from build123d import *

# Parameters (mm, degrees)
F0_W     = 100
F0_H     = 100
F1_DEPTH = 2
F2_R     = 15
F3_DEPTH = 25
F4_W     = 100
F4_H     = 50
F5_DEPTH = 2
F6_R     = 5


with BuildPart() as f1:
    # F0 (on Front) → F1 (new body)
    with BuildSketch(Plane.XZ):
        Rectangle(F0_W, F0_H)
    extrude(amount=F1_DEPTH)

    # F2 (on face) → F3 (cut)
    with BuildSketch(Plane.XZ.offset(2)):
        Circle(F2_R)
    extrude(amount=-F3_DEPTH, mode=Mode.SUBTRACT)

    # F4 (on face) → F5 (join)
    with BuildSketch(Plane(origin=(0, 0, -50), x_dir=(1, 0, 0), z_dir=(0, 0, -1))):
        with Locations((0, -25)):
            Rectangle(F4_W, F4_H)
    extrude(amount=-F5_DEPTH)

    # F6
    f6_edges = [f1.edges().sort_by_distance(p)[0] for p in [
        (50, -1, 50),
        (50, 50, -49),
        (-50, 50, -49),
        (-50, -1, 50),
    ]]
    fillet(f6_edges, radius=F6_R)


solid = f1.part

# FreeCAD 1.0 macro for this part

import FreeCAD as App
import Part
import Sketcher
from FreeCAD import Vector


def edges_at(feature, points):
    """Names of the edges that pass closest to the given points."""
    edges = feature.Shape.Edges
    near = lambda p: min(range(len(edges)), key=lambda i: edges[i].distToShape(Part.Vertex(*p))[0])
    return sorted({f"Edge{near(p) + 1}" for p in points})

doc = App.newDocument("Part")
body = doc.addObject("PartDesign::Body", "Body")

sketch1 = doc.addObject("Sketcher::SketchObject", "Sketch")
body.addObject(sketch1)
sketch1.AttachmentSupport = (doc.XZ_Plane, [""])
sketch1.MapMode = "FlatFace"
sketch1.addGeometry(Part.LineSegment(Vector(-50, 50, 0), Vector(-50, -50, 0)), False)
sketch1.addGeometry(Part.LineSegment(Vector(-50, -50, 0), Vector(50, -50, 0)), False)
sketch1.addGeometry(Part.LineSegment(Vector(50, -50, 0), Vector(50, 50, 0)), False)
sketch1.addGeometry(Part.LineSegment(Vector(50, 50, 0), Vector(-50, 50, 0)), False)
sketch1.addConstraint(Sketcher.Constraint("Coincident", 0, 2, 1, 1))
sketch1.addConstraint(Sketcher.Constraint("Coincident", 1, 2, 2, 1))
sketch1.addConstraint(Sketcher.Constraint("Coincident", 2, 2, 3, 1))
sketch1.addConstraint(Sketcher.Constraint("Coincident", 3, 2, 0, 1))
sketch1.addConstraint(Sketcher.Constraint("Vertical", 0))
sketch1.addConstraint(Sketcher.Constraint("Horizontal", 1))
sketch1.addConstraint(Sketcher.Constraint("Vertical", 2))
sketch1.addConstraint(Sketcher.Constraint("Horizontal", 3))
sketch1.addConstraint(Sketcher.Constraint("Symmetric", 0, 2, 2, 2, -1, 1))
sketch1.addConstraint(Sketcher.Constraint("Equal", 3, 0))
sketch1.addConstraint(Sketcher.Constraint("DistanceX", 1, 1, 1, 2, 100.0))
pad1 = doc.addObject("PartDesign::Pad", "Pad")
body.addObject(pad1)
pad1.Profile = sketch1
pad1.Length = 2

sketch2 = doc.addObject("Sketcher::SketchObject", "Sketch001")
body.addObject(sketch2)
sketch2.AttachmentSupport = (doc.XZ_Plane, [""])
sketch2.MapMode = "FlatFace"
sketch2.AttachmentOffset = App.Placement(Vector(0, 0, 2), App.Rotation())
sketch2.addGeometry(Part.Circle(Vector(0, 0, 0), Vector(0, 0, 1), 15), False)
sketch2.addConstraint(Sketcher.Constraint("Coincident", 0, 3, -1, 1))
sketch2.addConstraint(Sketcher.Constraint("Diameter", 0, 30.0))
pocket1 = doc.addObject("PartDesign::Pocket", "Pocket")
body.addObject(pocket1)
pocket1.Profile = sketch2
pocket1.Length = 25

sketch3 = doc.addObject("Sketcher::SketchObject", "Sketch002")
body.addObject(sketch3)
sketch3.AttachmentSupport = (doc.XY_Plane, [""])
sketch3.MapMode = "FlatFace"
sketch3.AttachmentOffset = App.Placement(Vector(0, 0, -50), App.Rotation())
sketch3.addGeometry(Part.LineSegment(Vector(-50, 0, 0), Vector(-50, 50, 0)), False)
sketch3.addGeometry(Part.LineSegment(Vector(-50, 50, 0), Vector(50, 50, 0)), False)
sketch3.addGeometry(Part.LineSegment(Vector(50, 50, 0), Vector(50, 0, 0)), False)
sketch3.addGeometry(Part.LineSegment(Vector(50, 0, 0), Vector(-50, 0, 0)), False)
sketch3.addConstraint(Sketcher.Constraint("Coincident", 0, 2, 1, 1))
sketch3.addConstraint(Sketcher.Constraint("Coincident", 1, 2, 2, 1))
sketch3.addConstraint(Sketcher.Constraint("Coincident", 2, 2, 3, 1))
sketch3.addConstraint(Sketcher.Constraint("Coincident", 3, 2, 0, 1))
sketch3.addConstraint(Sketcher.Constraint("Vertical", 0))
sketch3.addConstraint(Sketcher.Constraint("Horizontal", 1))
sketch3.addConstraint(Sketcher.Constraint("Vertical", 2))
sketch3.addConstraint(Sketcher.Constraint("Horizontal", 3))
sketch3.addConstraint(Sketcher.Constraint("Symmetric", 2, 2, 3, 2, -1, 1))
sketch3.addConstraint(Sketcher.Constraint("DistanceX", 1, 1, 1, 2, 100.0))
sketch3.addConstraint(Sketcher.Constraint("DistanceY", 0, 1, 0, 2, 50.0))
pad2 = doc.addObject("PartDesign::Pad", "Pad001")
body.addObject(pad2)
pad2.Profile = sketch3
pad2.Length = 2
doc.recompute()

fillet = doc.addObject("PartDesign::Fillet", "Fillet")
body.addObject(fillet)
fillet.Base = (pad2, edges_at(pad2, [
    (50, -1, 50),
    (50, 50, -49),
    (-50, 50, -49),
    (-50, -1, 50),
]))
fillet.Radius = 5

doc.recompute()
